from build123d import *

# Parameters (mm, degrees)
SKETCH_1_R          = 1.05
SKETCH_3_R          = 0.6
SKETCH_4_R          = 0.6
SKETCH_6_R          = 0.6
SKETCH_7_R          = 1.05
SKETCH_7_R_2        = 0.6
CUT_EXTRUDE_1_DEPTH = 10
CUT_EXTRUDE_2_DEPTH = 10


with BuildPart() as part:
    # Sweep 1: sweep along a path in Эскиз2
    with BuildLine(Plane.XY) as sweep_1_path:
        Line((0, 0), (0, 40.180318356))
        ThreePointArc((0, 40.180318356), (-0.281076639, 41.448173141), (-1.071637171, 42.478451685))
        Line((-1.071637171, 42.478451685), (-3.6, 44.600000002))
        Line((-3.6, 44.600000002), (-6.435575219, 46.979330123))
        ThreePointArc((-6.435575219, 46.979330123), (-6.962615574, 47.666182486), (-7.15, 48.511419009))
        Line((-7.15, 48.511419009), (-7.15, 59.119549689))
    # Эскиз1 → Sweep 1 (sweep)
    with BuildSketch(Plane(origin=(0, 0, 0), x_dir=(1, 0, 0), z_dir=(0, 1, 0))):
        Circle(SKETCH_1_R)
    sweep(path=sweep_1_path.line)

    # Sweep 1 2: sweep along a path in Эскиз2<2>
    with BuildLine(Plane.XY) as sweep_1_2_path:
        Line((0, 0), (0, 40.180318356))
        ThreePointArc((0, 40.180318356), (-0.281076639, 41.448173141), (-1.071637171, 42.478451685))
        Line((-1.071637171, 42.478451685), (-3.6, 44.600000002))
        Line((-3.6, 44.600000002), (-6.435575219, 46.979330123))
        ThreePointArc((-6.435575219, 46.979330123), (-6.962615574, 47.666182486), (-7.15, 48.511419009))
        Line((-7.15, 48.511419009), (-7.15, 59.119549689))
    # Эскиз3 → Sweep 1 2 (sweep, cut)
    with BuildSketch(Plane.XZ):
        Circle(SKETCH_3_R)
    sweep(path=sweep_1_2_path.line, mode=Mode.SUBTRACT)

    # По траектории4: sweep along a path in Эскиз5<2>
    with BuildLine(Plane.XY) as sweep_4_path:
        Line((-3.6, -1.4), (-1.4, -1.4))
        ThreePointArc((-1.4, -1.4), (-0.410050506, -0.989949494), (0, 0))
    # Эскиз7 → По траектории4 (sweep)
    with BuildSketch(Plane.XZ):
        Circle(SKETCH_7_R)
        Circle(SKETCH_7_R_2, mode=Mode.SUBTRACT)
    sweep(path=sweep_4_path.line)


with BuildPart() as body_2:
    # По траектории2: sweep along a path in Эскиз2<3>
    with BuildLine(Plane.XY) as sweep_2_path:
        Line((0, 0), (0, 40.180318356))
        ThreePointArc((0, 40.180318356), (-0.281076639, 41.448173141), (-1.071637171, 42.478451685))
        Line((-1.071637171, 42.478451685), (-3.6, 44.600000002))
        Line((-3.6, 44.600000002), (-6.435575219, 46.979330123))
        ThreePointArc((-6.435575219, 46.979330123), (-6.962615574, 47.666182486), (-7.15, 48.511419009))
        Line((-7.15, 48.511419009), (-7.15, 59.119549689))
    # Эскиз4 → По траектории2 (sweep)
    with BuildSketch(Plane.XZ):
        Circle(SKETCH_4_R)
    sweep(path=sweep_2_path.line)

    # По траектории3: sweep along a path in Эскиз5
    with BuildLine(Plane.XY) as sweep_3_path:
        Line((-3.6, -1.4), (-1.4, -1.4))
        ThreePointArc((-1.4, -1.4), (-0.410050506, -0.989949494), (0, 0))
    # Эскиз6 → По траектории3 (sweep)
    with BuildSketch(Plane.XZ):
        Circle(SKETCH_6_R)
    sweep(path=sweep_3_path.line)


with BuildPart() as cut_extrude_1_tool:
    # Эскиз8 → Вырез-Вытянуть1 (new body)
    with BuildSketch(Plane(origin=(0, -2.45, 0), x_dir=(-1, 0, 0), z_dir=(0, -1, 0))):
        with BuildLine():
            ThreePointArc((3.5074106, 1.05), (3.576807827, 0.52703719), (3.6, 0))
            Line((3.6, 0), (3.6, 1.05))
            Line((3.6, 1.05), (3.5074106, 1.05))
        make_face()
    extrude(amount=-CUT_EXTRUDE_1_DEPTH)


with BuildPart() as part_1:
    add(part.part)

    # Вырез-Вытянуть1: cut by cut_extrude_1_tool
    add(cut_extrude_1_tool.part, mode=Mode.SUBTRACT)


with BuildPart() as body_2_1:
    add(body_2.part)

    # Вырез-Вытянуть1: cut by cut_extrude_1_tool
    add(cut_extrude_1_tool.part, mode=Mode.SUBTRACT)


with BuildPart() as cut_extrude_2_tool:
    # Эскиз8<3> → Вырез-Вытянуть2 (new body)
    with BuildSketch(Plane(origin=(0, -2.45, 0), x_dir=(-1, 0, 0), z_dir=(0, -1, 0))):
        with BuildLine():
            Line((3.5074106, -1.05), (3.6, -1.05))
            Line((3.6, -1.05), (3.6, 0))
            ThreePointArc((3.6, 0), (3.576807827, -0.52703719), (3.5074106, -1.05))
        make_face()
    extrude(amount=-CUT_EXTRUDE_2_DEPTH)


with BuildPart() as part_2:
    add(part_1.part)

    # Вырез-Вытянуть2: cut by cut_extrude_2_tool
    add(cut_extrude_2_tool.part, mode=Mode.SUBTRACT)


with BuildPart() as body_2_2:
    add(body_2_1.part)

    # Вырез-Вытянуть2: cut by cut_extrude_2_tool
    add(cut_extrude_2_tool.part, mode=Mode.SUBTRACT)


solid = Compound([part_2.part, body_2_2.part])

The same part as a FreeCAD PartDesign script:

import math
import FreeCAD as App
import Part
import Sketcher
from FreeCAD import Vector
Q = App.Units.Quantity

doc = App.newDocument("Part")
body = doc.addObject("PartDesign::Body", "Body")

# Sketch on XZ plane
sketch1 = doc.addObject("Sketcher::SketchObject", "Sketch")
body.addObject(sketch1)
sketch1.AttachmentSupport = (doc.XZ_Plane, [""])
sketch1.MapMode = "FlatFace"
sketch1.addGeometry(Part.Circle(Vector(0, 0, 0), Vector(0, 0, 1), 1.1), False)
sketch1.addConstraint([
    Sketcher.Constraint("Coincident", 0, 3, -1, 1),
    Sketcher.Constraint("Diameter", 0, 2.1),
])

# Sketch on XY plane
sketch2 = doc.addObject("Sketcher::SketchObject", "Sketch001")
body.addObject(sketch2)
sketch2.AttachmentSupport = (doc.XY_Plane, [""])
sketch2.MapMode = "FlatFace"
sketch2.addGeometry([
    Part.LineSegment(Vector(0, 0, 0), Vector(0, 40.2, 0)),  # 0
    Part.ArcOfCircle(Part.Circle(Vector(-3, 40.2, 0), Vector(0, 0, 1), 3), math.radians(0), math.radians(50)),  # 1
    Part.LineSegment(Vector(-1.1, 42.5, 0), Vector(-3.6, 44.6, 0)),  # 2
    Part.LineSegment(Vector(-3.6, 44.6, 0), Vector(-6.4, 47, 0)),  # 3
    Part.ArcOfCircle(Part.Circle(Vector(-5.2, 48.5, 0), Vector(0, 0, 1), 2), math.radians(-180), math.radians(-130)),  # 4
    Part.LineSegment(Vector(-7.2, 48.5, 0), Vector(-7.2, 59.1, 0)),  # 5
], False)
sketch2.addConstraint([
    Sketcher.Constraint("Tangent", 0, 2, 1, 1),
    Sketcher.Constraint("Tangent", 1, 2, 2, 1),
    Sketcher.Constraint("Coincident", 2, 2, 3, 1),
    Sketcher.Constraint("Tangent", 3, 2, 4, 2),
    Sketcher.Constraint("Tangent", 4, 1, 5, 1),
    Sketcher.Constraint("Vertical", 0),
    Sketcher.Constraint("Vertical", 5),
    Sketcher.Constraint("Coincident", 0, 1, -1, 1),
    Sketcher.Constraint("Parallel", 2, 3),
    Sketcher.Constraint("Radius", 1, 3.0),
    Sketcher.Constraint("Radius", 4, 2.0),
    Sketcher.Constraint("Angle", 2, Q("140 deg")),
    Sketcher.Constraint("DistanceX", 2, 2, -1, 1, 3.6),
    Sketcher.Constraint("DistanceY", -1, 1, 2, 2, 44.6),
    Sketcher.Constraint("DistanceX", 4, 3, -1, 1, 5.15),
    Sketcher.Constraint("DistanceY", 5, 1, 5, 2, 10.608131),
])
doc.recompute()

additivepipe = doc.addObject("PartDesign::AdditivePipe", "AdditivePipe")
body.addObject(additivepipe)
additivepipe.Profile = sketch1
additivepipe.Spine = (sketch2, ["Edge1", "Edge2", "Edge3", "Edge4", "Edge5", "Edge6"])

# Sketch on XZ plane
sketch3 = doc.addObject("Sketcher::SketchObject", "Sketch002")
body.addObject(sketch3)
sketch3.AttachmentSupport = (doc.XZ_Plane, [""])
sketch3.MapMode = "FlatFace"
sketch3.addGeometry(Part.Circle(Vector(0, 0, 0), Vector(0, 0, 1), 0.6), False)
sketch3.addConstraint([
    Sketcher.Constraint("Coincident", 0, 3, -1, 1),
    Sketcher.Constraint("Diameter", 0, 1.2),
])

# Sketch on XY plane
sketch4 = doc.addObject("Sketcher::SketchObject", "Sketch003")
body.addObject(sketch4)
sketch4.AttachmentSupport = (doc.XY_Plane, [""])
sketch4.MapMode = "FlatFace"
sketch4.addGeometry([
    Part.LineSegment(Vector(0, 0, 0), Vector(0, 40.2, 0)),  # 0
    Part.ArcOfCircle(Part.Circle(Vector(-3, 40.2, 0), Vector(0, 0, 1), 3), math.radians(0), math.radians(50)),  # 1
    Part.LineSegment(Vector(-1.1, 42.5, 0), Vector(-3.6, 44.6, 0)),  # 2
    Part.LineSegment(Vector(-3.6, 44.6, 0), Vector(-6.4, 47, 0)),  # 3
    Part.ArcOfCircle(Part.Circle(Vector(-5.2, 48.5, 0), Vector(0, 0, 1), 2), math.radians(-180), math.radians(-130)),  # 4
    Part.LineSegment(Vector(-7.2, 48.5, 0), Vector(-7.2, 59.1, 0)),  # 5
], False)
sketch4.addConstraint([
    Sketcher.Constraint("Tangent", 0, 2, 1, 1),
    Sketcher.Constraint("Tangent", 1, 2, 2, 1),
    Sketcher.Constraint("Coincident", 2, 2, 3, 1),
    Sketcher.Constraint("Tangent", 3, 2, 4, 2),
    Sketcher.Constraint("Tangent", 4, 1, 5, 1),
    Sketcher.Constraint("Vertical", 0),
    Sketcher.Constraint("Vertical", 5),
    Sketcher.Constraint("Coincident", 0, 1, -1, 1),
    Sketcher.Constraint("Parallel", 2, 3),
    Sketcher.Constraint("Radius", 1, 3.0),
    Sketcher.Constraint("Radius", 4, 2.0),
    Sketcher.Constraint("Angle", 2, Q("140 deg")),
    Sketcher.Constraint("DistanceX", 2, 2, -1, 1, 3.6),
    Sketcher.Constraint("DistanceY", -1, 1, 2, 2, 44.6),
    Sketcher.Constraint("DistanceX", 4, 3, -1, 1, 5.15),
    Sketcher.Constraint("DistanceY", 5, 1, 5, 2, 10.608131),
])
doc.recompute()

subtractivepipe = doc.addObject("PartDesign::SubtractivePipe", "SubtractivePipe")
body.addObject(subtractivepipe)
subtractivepipe.Profile = sketch3
subtractivepipe.Spine = (sketch4, ["Edge1", "Edge2", "Edge3", "Edge4", "Edge5", "Edge6"])

# Sketch on XZ plane
sketch5 = doc.addObject("Sketcher::SketchObject", "Sketch004")
body.addObject(sketch5)
sketch5.AttachmentSupport = (doc.XZ_Plane, [""])
sketch5.MapMode = "FlatFace"
sketch5.addGeometry([
    Part.Circle(Vector(0, 0, 0), Vector(0, 0, 1), 1.1),
    Part.Circle(Vector(0, 0, 0), Vector(0, 0, 1), 0.6),
], False)
sketch5.addConstraint([
    Sketcher.Constraint("Coincident", 0, 3, -1, 1),
    Sketcher.Constraint("Coincident", 1, 3, -1, 1),
    Sketcher.Constraint("Diameter", 0, 2.1),
    Sketcher.Constraint("Diameter", 1, 1.2),
])

# Sketch on XY plane
sketch6 = doc.addObject("Sketcher::SketchObject", "Sketch005")
body.addObject(sketch6)
sketch6.AttachmentSupport = (doc.XY_Plane, [""])
sketch6.MapMode = "FlatFace"
sketch6.addGeometry([
    Part.LineSegment(Vector(-3.6, -1.4, 0), Vector(-1.4, -1.4, 0)),
    Part.ArcOfCircle(Part.Circle(Vector(-1.4, 0, 0), Vector(0, 0, 1), 1.4), math.radians(-90), math.radians(0)),
], False)
sketch6.addConstraint([
    Sketcher.Constraint("Tangent", 0, 2, 1, 1),
    Sketcher.Constraint("Horizontal", 0),
    Sketcher.Constraint("Coincident", 1, 2, -1, 1),
    Sketcher.Constraint("PointOnObject", 1, 3, -1),
    Sketcher.Constraint("Radius", 1, 1.4),
    Sketcher.Constraint("DistanceX", 0, 1, 0, 2, 2.2),
])
doc.recompute()

additivepipe2 = doc.addObject("PartDesign::AdditivePipe", "AdditivePipe001")
body.addObject(additivepipe2)
additivepipe2.Profile = sketch5
additivepipe2.Spine = (sketch6, ["Edge1", "Edge2"])
body2 = doc.addObject("PartDesign::Body", "Body001")

# Sketch on XZ plane
sketch7 = doc.addObject("Sketcher::SketchObject", "Sketch006")
body2.addObject(sketch7)
sketch7.AttachmentSupport = (doc.getObject("XZ_Plane001"), [""])
sketch7.MapMode = "FlatFace"
sketch7.addGeometry(Part.Circle(Vector(0, 0, 0), Vector(0, 0, 1), 0.6), False)
sketch7.addConstraint([
    Sketcher.Constraint("Coincident", 0, 3, -1, 1),
    Sketcher.Constraint("Diameter", 0, 1.2),
])

# Sketch on XY plane
sketch8 = doc.addObject("Sketcher::SketchObject", "Sketch007")
body2.addObject(sketch8)
sketch8.AttachmentSupport = (doc.getObject("XY_Plane001"), [""])
sketch8.MapMode = "FlatFace"
sketch8.addGeometry([
    Part.LineSegment(Vector(0, 0, 0), Vector(0, 40.2, 0)),  # 0
    Part.ArcOfCircle(Part.Circle(Vector(-3, 40.2, 0), Vector(0, 0, 1), 3), math.radians(0), math.radians(50)),  # 1
    Part.LineSegment(Vector(-1.1, 42.5, 0), Vector(-3.6, 44.6, 0)),  # 2
    Part.LineSegment(Vector(-3.6, 44.6, 0), Vector(-6.4, 47, 0)),  # 3
    Part.ArcOfCircle(Part.Circle(Vector(-5.2, 48.5, 0), Vector(0, 0, 1), 2), math.radians(-180), math.radians(-130)),  # 4
    Part.LineSegment(Vector(-7.2, 48.5, 0), Vector(-7.2, 59.1, 0)),  # 5
], False)
sketch8.addConstraint([
    Sketcher.Constraint("Tangent", 0, 2, 1, 1),
    Sketcher.Constraint("Tangent", 1, 2, 2, 1),
    Sketcher.Constraint("Coincident", 2, 2, 3, 1),
    Sketcher.Constraint("Tangent", 3, 2, 4, 2),
    Sketcher.Constraint("Tangent", 4, 1, 5, 1),
    Sketcher.Constraint("Vertical", 0),
    Sketcher.Constraint("Vertical", 5),
    Sketcher.Constraint("Coincident", 0, 1, -1, 1),
    Sketcher.Constraint("Parallel", 2, 3),
    Sketcher.Constraint("Radius", 1, 3.0),
    Sketcher.Constraint("Radius", 4, 2.0),
    Sketcher.Constraint("Angle", 2, Q("140 deg")),
    Sketcher.Constraint("DistanceX", 2, 2, -1, 1, 3.6),
    Sketcher.Constraint("DistanceY", -1, 1, 2, 2, 44.6),
    Sketcher.Constraint("DistanceX", 4, 3, -1, 1, 5.15),
    Sketcher.Constraint("DistanceY", 5, 1, 5, 2, 10.608131),
])
doc.recompute()

additivepipe3 = doc.addObject("PartDesign::AdditivePipe", "AdditivePipe002")
body2.addObject(additivepipe3)
additivepipe3.Profile = sketch7
additivepipe3.Spine = (sketch8, ["Edge1", "Edge2", "Edge3", "Edge4", "Edge5", "Edge6"])

# Sketch on XZ plane
sketch9 = doc.addObject("Sketcher::SketchObject", "Sketch008")
body2.addObject(sketch9)
sketch9.AttachmentSupport = (doc.getObject("XZ_Plane001"), [""])
sketch9.MapMode = "FlatFace"
sketch9.addGeometry(Part.Circle(Vector(0, 0, 0), Vector(0, 0, 1), 0.6), False)
sketch9.addConstraint([
    Sketcher.Constraint("Coincident", 0, 3, -1, 1),
    Sketcher.Constraint("Diameter", 0, 1.2),
])

# Sketch on XY plane
sketch10 = doc.addObject("Sketcher::SketchObject", "Sketch009")
body2.addObject(sketch10)
sketch10.AttachmentSupport = (doc.getObject("XY_Plane001"), [""])
sketch10.MapMode = "FlatFace"
sketch10.addGeometry([
    Part.LineSegment(Vector(-3.6, -1.4, 0), Vector(-1.4, -1.4, 0)),
    Part.ArcOfCircle(Part.Circle(Vector(-1.4, 0, 0), Vector(0, 0, 1), 1.4), math.radians(-90), math.radians(0)),
], False)
sketch10.addConstraint([
    Sketcher.Constraint("Tangent", 0, 2, 1, 1),
    Sketcher.Constraint("Horizontal", 0),
    Sketcher.Constraint("Coincident", 1, 2, -1, 1),
    Sketcher.Constraint("PointOnObject", 1, 3, -1),
    Sketcher.Constraint("Radius", 1, 1.4),
    Sketcher.Constraint("DistanceX", 0, 1, 0, 2, 2.2),
])
doc.recompute()

additivepipe4 = doc.addObject("PartDesign::AdditivePipe", "AdditivePipe003")
body2.addObject(additivepipe4)
additivepipe4.Profile = sketch9
additivepipe4.Spine = (sketch10, ["Edge1", "Edge2"])
body3 = doc.addObject("PartDesign::Body", "Body002")

# Sketch on XZ plane
sketch11 = doc.addObject("Sketcher::SketchObject", "Sketch010")
body3.addObject(sketch11)
sketch11.AttachmentSupport = (doc.getObject("XZ_Plane002"), [""])
sketch11.MapMode = "FlatFace"
sketch11.AttachmentOffset = App.Placement(Vector(0, 0, 2.45), App.Rotation())
sketch11.addGeometry([
    Part.ArcOfCircle(Part.Circle(Vector(2.4, 0, 0), Vector(0, 0, 1), 6), math.radians(180), math.radians(190.08)),
    Part.LineSegment(Vector(-3.6, 0, 0), Vector(-3.6, -1.05, 0)),
    Part.LineSegment(Vector(-3.6, -1.05, 0), Vector(-3.51, -1.05, 0)),
], False)
sketch11.addConstraint([
    Sketcher.Constraint("Tangent", 0, 1, 1, 1),
    Sketcher.Constraint("Coincident", 1, 2, 2, 1),
    Sketcher.Constraint("Coincident", 2, 2, 0, 2),
    Sketcher.Constraint("Vertical", 1),
    Sketcher.Constraint("Horizontal", 2),
    Sketcher.Constraint("PointOnObject", 0, 3, -1),
    Sketcher.Constraint("Radius", 0, 6.0),
    Sketcher.Constraint("DistanceY", 1, 2, 1, 1, 1.05),
    Sketcher.Constraint("DistanceX", -1, 1, 0, 3, 2.4),
])
pad1 = doc.addObject("PartDesign::Pad", "Pad")
body3.addObject(pad1)
pad1.Profile = sketch11
pad1.Length = 10
pad1.Reversed = True
doc.recompute()

body4 = doc.addObject("PartDesign::Body", "Body003")
body4.BaseFeature = body3
boolean = doc.addObject("PartDesign::Boolean", "Boolean")
body.addObject(boolean)
boolean.Type = "Cut"
boolean.addObjects([body4])
doc.recompute()

boolean2 = doc.addObject("PartDesign::Boolean", "Boolean001")
body2.addObject(boolean2)
boolean2.Type = "Cut"
boolean2.addObjects([body3])
body5 = doc.addObject("PartDesign::Body", "Body004")

# Sketch on XZ plane
sketch12 = doc.addObject("Sketcher::SketchObject", "Sketch011")
body5.addObject(sketch12)
sketch12.AttachmentSupport = (doc.getObject("XZ_Plane004"), [""])
sketch12.MapMode = "FlatFace"
sketch12.AttachmentOffset = App.Placement(Vector(0, 0, 2.45), App.Rotation())
sketch12.addGeometry([
    Part.LineSegment(Vector(-3.51, 1.05, 0), Vector(-3.6, 1.05, 0)),
    Part.LineSegment(Vector(-3.6, 1.05, 0), Vector(-3.6, 0, 0)),
    Part.ArcOfCircle(Part.Circle(Vector(2.4, 0, 0), Vector(0, 0, 1), 6), math.radians(169.92), math.radians(180)),
], False)
sketch12.addConstraint([
    Sketcher.Constraint("Coincident", 0, 2, 1, 1),
    Sketcher.Constraint("Tangent", 1, 2, 2, 2),
    Sketcher.Constraint("Coincident", 2, 1, 0, 1),
    Sketcher.Constraint("Horizontal", 0),
    Sketcher.Constraint("Vertical", 1),
    Sketcher.Constraint("PointOnObject", 2, 3, -1),
    Sketcher.Constraint("Radius", 2, 6.0),
    Sketcher.Constraint("DistanceY", 1, 2, 1, 1, 1.05),
    Sketcher.Constraint("DistanceX", -1, 1, 2, 3, 2.4),
])
pad2 = doc.addObject("PartDesign::Pad", "Pad001")
body5.addObject(pad2)
pad2.Profile = sketch12
pad2.Length = 10
pad2.Reversed = True
doc.recompute()

body6 = doc.addObject("PartDesign::Body", "Body005")
body6.BaseFeature = body5
boolean3 = doc.addObject("PartDesign::Boolean", "Boolean002")
body.addObject(boolean3)
boolean3.Type = "Cut"
boolean3.addObjects([body6])
doc.recompute()

boolean4 = doc.addObject("PartDesign::Boolean", "Boolean003")
body2.addObject(boolean4)
boolean4.Type = "Cut"
boolean4.addObjects([body5])

doc.recompute()
